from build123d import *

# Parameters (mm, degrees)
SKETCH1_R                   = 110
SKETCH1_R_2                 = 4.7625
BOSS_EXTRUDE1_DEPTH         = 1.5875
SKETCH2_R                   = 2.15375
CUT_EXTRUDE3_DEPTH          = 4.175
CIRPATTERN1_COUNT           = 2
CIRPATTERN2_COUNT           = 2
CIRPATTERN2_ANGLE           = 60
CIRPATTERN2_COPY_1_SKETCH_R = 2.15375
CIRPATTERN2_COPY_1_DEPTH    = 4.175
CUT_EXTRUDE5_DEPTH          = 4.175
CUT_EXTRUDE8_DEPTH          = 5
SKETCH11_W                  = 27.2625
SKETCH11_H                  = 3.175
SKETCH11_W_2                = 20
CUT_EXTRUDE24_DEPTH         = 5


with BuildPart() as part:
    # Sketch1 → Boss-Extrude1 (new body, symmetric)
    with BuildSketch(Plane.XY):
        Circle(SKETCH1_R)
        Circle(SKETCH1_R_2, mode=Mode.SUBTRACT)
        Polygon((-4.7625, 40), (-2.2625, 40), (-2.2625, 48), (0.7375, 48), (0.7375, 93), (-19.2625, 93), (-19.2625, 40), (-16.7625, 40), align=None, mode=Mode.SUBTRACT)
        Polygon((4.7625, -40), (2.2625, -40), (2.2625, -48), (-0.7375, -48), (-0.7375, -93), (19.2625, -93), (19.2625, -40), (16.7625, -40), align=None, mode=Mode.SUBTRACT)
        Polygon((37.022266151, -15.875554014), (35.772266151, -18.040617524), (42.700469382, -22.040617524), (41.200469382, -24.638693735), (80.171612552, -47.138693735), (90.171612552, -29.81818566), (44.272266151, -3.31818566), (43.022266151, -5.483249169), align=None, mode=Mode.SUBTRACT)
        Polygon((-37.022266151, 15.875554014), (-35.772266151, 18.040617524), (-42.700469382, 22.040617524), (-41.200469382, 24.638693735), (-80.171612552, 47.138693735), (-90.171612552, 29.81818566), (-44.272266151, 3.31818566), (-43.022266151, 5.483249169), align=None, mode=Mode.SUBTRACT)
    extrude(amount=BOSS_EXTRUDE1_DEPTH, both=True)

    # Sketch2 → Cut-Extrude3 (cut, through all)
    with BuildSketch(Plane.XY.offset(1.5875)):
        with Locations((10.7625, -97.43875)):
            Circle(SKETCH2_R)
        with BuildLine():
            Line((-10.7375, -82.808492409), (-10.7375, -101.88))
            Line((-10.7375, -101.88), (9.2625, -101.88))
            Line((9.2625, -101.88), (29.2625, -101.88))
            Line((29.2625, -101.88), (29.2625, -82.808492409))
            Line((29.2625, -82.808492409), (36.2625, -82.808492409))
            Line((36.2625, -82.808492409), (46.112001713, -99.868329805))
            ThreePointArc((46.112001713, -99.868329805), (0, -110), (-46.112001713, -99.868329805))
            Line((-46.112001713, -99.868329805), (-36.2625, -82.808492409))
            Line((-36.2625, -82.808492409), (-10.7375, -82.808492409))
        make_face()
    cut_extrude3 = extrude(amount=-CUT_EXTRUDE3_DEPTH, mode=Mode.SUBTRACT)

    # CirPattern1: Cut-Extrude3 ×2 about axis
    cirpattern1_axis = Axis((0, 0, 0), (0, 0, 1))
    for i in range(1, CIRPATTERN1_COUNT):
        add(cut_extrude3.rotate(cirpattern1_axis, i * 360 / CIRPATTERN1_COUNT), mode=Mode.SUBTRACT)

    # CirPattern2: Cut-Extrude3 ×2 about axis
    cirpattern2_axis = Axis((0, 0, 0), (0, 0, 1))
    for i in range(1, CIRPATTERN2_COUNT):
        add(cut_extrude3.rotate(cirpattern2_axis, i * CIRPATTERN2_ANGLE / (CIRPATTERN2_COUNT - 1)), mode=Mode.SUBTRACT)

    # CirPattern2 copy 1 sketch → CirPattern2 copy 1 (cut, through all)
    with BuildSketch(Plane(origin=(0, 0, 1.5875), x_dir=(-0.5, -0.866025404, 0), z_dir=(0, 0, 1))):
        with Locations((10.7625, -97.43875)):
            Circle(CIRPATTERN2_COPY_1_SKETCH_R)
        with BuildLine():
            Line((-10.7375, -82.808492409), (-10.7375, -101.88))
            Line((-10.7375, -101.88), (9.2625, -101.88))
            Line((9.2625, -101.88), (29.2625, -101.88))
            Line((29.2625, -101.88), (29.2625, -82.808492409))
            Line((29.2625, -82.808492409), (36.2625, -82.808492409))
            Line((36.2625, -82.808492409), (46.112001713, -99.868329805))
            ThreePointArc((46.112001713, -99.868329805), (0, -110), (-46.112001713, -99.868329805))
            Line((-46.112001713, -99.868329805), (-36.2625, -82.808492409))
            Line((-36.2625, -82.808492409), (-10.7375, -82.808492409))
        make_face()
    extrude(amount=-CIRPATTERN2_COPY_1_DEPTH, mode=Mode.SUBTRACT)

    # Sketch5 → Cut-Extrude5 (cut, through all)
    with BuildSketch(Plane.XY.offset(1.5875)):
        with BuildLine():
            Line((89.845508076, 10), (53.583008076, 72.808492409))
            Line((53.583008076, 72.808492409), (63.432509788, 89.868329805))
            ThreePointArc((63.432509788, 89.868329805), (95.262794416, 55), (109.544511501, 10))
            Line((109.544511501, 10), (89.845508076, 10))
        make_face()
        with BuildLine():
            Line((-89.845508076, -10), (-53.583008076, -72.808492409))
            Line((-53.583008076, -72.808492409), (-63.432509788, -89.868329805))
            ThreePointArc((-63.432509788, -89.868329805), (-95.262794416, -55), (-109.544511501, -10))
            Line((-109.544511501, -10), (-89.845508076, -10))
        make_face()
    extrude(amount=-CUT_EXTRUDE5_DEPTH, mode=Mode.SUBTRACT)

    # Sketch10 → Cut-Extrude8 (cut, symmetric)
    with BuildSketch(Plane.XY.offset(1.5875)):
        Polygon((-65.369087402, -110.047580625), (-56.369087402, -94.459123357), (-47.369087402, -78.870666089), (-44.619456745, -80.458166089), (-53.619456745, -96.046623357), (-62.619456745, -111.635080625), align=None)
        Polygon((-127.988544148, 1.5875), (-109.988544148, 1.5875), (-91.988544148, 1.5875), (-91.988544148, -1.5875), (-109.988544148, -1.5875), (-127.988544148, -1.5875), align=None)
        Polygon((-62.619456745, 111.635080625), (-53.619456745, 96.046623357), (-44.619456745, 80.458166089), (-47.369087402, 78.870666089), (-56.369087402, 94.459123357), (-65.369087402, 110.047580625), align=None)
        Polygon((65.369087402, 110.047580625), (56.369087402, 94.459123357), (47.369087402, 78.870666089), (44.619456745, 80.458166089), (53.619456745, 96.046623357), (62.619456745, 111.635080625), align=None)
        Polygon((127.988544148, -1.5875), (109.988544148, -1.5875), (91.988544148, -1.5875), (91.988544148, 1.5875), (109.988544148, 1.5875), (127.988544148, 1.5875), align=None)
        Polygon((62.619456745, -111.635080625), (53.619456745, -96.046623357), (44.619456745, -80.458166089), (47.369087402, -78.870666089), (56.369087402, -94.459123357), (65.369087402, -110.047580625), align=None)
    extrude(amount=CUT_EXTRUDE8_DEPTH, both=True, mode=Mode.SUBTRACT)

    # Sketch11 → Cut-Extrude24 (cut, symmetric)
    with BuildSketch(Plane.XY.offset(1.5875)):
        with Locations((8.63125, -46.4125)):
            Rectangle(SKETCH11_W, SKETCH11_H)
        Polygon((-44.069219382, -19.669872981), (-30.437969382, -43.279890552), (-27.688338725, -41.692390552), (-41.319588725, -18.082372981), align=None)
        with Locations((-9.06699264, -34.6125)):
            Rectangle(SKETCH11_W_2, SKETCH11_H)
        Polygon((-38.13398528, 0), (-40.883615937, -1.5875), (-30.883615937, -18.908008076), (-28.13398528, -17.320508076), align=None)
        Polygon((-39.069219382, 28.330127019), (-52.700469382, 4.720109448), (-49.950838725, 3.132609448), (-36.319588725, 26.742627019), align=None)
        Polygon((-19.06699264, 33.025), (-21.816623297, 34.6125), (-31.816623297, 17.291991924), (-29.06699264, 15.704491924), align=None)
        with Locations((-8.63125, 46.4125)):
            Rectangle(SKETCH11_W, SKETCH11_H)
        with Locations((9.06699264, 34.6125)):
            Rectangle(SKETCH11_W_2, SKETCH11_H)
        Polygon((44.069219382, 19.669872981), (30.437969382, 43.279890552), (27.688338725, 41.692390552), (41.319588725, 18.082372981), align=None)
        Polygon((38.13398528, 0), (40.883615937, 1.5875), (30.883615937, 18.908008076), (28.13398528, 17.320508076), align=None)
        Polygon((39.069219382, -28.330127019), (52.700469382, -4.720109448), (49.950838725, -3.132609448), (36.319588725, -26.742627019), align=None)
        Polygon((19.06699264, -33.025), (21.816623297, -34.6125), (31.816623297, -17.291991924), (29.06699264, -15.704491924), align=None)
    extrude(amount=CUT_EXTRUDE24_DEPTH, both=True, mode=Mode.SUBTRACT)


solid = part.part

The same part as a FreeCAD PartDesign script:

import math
import FreeCAD as App
import Part
import Sketcher
from FreeCAD import Vector
Q = App.Units.Quantity


def add_polygon(sketch, points):
    """Adds a closed chain of lines whose ends are joined by coincident constraints."""
    first, n = sketch.GeometryCount, len(points)
    for a, b in zip(points, points[1:] + points[:1]):
        sketch.addGeometry(Part.LineSegment(App.Vector(*a, 0), App.Vector(*b, 0)), False)
    for i in range(n):
        sketch.addConstraint(Sketcher.Constraint("Coincident", first + i, 2, first + (i + 1) % n, 1))

doc = App.newDocument("Part")
body = doc.addObject("PartDesign::Body", "Body")

# Sketch on XY plane
sketch1 = body.newObject("Sketcher::SketchObject", "Sketch")
sketch1.AttachmentSupport = (doc.getObject("XY_Plane"), [""])
sketch1.MapMode = "FlatFace"
sketch1.addGeometry(Part.Circle(Vector(0, 0, 0), Vector(0, 0, 1), 110), False)  # 0
add_polygon(sketch1, [(2.2625, -40), (19.2625, -40), (19.2625, -93), (-0.7375, -93), (-0.7375, -48), (2.2625, -48)])  # lines 1-6
add_polygon(sketch1, [(35.772266, -18.040618), (37.022266, -15.875554), (43.022266, -5.483249), (44.272266, -3.318186), (90.171613, -29.818186), (80.171613, -47.138694), (41.200469, -24.638694), (42.700469, -22.040618)])  # lines 7-14
add_polygon(sketch1, [(-35.772266, 18.040618), (-37.022266, 15.875554), (-43.022266, 5.483249), (-44.272266, 3.318186), (-90.171613, 29.818186), (-80.171613, 47.138694), (-41.200469, 24.638694), (-42.700469, 22.040618)])  # lines 15-22
sketch1.addGeometry(Part.Circle(Vector(0, 0, 0), Vector(0, 0, 1), 4.7625), False)  # 23
add_polygon(sketch1, [(-2.2625, 40), (-19.2625, 40), (-19.2625, 93), (0.7375, 93), (0.7375, 48), (-2.2625, 48)])  # lines 24-29
sketch1.addConstraint([
    Sketcher.Constraint("Horizontal", 1),
    Sketcher.Constraint("Vertical", 2),
    Sketcher.Constraint("Horizontal", 3),
    Sketcher.Constraint("Vertical", 4),
    Sketcher.Constraint("Horizontal", 5),
    Sketcher.Constraint("Vertical", 6),
    Sketcher.Constraint("Horizontal", 24),
    Sketcher.Constraint("Vertical", 25),
    Sketcher.Constraint("Horizontal", 26),
    Sketcher.Constraint("Vertical", 27),
    Sketcher.Constraint("Horizontal", 28),
    Sketcher.Constraint("Vertical", 29),
    Sketcher.Constraint("Coincident", 0, 3, -1, 1),
    Sketcher.Constraint("Coincident", 23, 3, -1, 1),
    Sketcher.Constraint("Symmetric", 7, 2, 15, 2, -1, 1),
    Sketcher.Constraint("Symmetric", 8, 2, 16, 2, -1, 1),
    Sketcher.Constraint("Symmetric", 9, 2, 17, 2, -1, 1),
    Sketcher.Constraint("Symmetric", 10, 2, 18, 2, -1, 1),
    Sketcher.Constraint("Symmetric", 11, 2, 19, 2, -1, 1),
    Sketcher.Constraint("Symmetric", 12, 2, 20, 2, -1, 1),
    Sketcher.Constraint("Symmetric", 13, 2, 21, 2, -1, 1),
    Sketcher.Constraint("Symmetric", 14, 2, 22, 2, -1, 1),
    Sketcher.Constraint("Symmetric", 1, 2, 24, 2, -1, 1),
    Sketcher.Constraint("Symmetric", 3, 2, 26, 2, -1, 1),
    Sketcher.Constraint("Symmetric", 5, 2, 28, 2, -1, 1),
    Sketcher.Constraint("Parallel", 7, 8),
    Sketcher.Constraint("Parallel", 8, 9),
    Sketcher.Constraint("Perpendicular", 9, 10),
    Sketcher.Constraint("Perpendicular", 10, 11),
    Sketcher.Constraint("Perpendicular", 11, 12),
    Sketcher.Constraint("Perpendicular", 12, 13),
    Sketcher.Constraint("Perpendicular", 13, 14),
    Sketcher.Constraint("Equal", 7, 9),
    Sketcher.Constraint("Diameter", 0, Q("220 mm")),
    Sketcher.Constraint("DistanceX", 1, 1, 1, 2, Q("17 mm")),
    Sketcher.Constraint("DistanceX", 3, 2, 3, 1, Q("20 mm")),
    Sketcher.Constraint("DistanceY", 2, 2, 2, 1, Q("53 mm")),
    Sketcher.Constraint("DistanceY", 4, 1, 4, 2, Q("45 mm")),
    Sketcher.Constraint("Angle", 7, Q("60 deg")),
    Sketcher.Constraint("Distance", 8, Q("12 mm")),
    Sketcher.Constraint("Distance", 10, Q("53 mm")),
    Sketcher.Constraint("Distance", 11, Q("20 mm")),
    Sketcher.Constraint("Distance", 12, Q("45 mm")),
    Sketcher.Constraint("Distance", 13, Q("3 mm")),
    Sketcher.Constraint("Diameter", 23, Q("9.525 mm")),
    Sketcher.Constraint("DistanceY", 1, 2, -1, 1, Q("40 mm")),
    Sketcher.Constraint("DistanceX", -1, 1, 1, 2, Q("19.2625 mm")),
    Sketcher.Constraint("DistanceY", 8, 2, -1, 1, Q("5.483249 mm")),
    Sketcher.Constraint("DistanceX", -1, 1, 12, 2, Q("41.200469 mm")),
])
pad1 = body.newObject("PartDesign::Pad", "Pad")
pad1.Profile = sketch1
pad1.Length = 3.175
pad1.Midplane = True

# Sketch on XY plane
sketch2 = body.newObject("Sketcher::SketchObject", "Sketch001")
sketch2.AttachmentSupport = (doc.getObject("XY_Plane"), [""])
sketch2.MapMode = "FlatFace"
sketch2.AttachmentOffset = App.Placement(Vector(0, 0, 1.5875), App.Rotation())
sketch2.addGeometry([
    Part.Circle(Vector(10.7625, -97.43875, 0), Vector(0, 0, 1), 2.15375),  # 0
    Part.LineSegment(Vector(-10.7375, -101.88, 0), Vector(-10.7375, -82.808492, 0)),  # 1
    Part.LineSegment(Vector(-10.7375, -82.808492, 0), Vector(-36.2625, -82.808492, 0)),  # 2
    Part.LineSegment(Vector(-36.2625, -82.808492, 0), Vector(-46.112002, -99.86833, 0)),  # 3
    Part.ArcOfCircle(Part.Circle(Vector(0, 0, 0), Vector(0, 0, 1), 110), math.radians(-114.784091), math.radians(-65.215909)),  # 4
    Part.LineSegment(Vector(46.112002, -99.86833, 0), Vector(36.2625, -82.808492, 0)),  # 5
    Part.LineSegment(Vector(36.2625, -82.808492, 0), Vector(29.2625, -82.808492, 0)),  # 6
    Part.LineSegment(Vector(29.2625, -82.808492, 0), Vector(29.2625, -101.88, 0)),  # 7
    Part.LineSegment(Vector(29.2625, -101.88, 0), Vector(-10.7375, -101.88, 0)),  # 8
], False)
sketch2.addConstraint([
    Sketcher.Constraint("Coincident", 1, 2, 2, 1),
    Sketcher.Constraint("Coincident", 2, 2, 3, 1),
    Sketcher.Constraint("Coincident", 3, 2, 4, 1),
    Sketcher.Constraint("Coincident", 4, 2, 5, 1),
    Sketcher.Constraint("Coincident", 5, 2, 6, 1),
    Sketcher.Constraint("Coincident", 6, 2, 7, 1),
    Sketcher.Constraint("Coincident", 7, 2, 8, 1),
    Sketcher.Constraint("Coincident", 8, 2, 1, 1),
    Sketcher.Constraint("Vertical", 1),
    Sketcher.Constraint("Horizontal", 2),
    Sketcher.Constraint("Horizontal", 6),
    Sketcher.Constraint("Vertical", 7),
    Sketcher.Constraint("Horizontal", 8),
    Sketcher.Constraint("Coincident", 4, 3, -1, 1),
    Sketcher.Constraint("Symmetric", 2, 2, 5, 2, -2),
    Sketcher.Constraint("Horizontal", 3, 2, 4, 2),
    Sketcher.Constraint("Radius", 4, Q("110 mm")),
    Sketcher.Constraint("DistanceX", 6, 2, 6, 1, Q("7 mm")),
    Sketcher.Constraint("DistanceX", 8, 2, 8, 1, Q("40 mm")),
    Sketcher.Constraint("Angle", 3, Q("-120 deg")),
    Sketcher.Constraint("Diameter", 0, Q("4.3075 mm")),
    Sketcher.Constraint("DistanceX", 1, 2, 0, 3, Q("21.5 mm")),
    Sketcher.Constraint("DistanceX", 2, 2, 2, 1, Q("25.525 mm")),
    Sketcher.Constraint("DistanceY", 7, 2, -1, 1, Q("101.88 mm")),
    Sketcher.Constraint("DistanceX", 3, 2, -1, 1, Q("46.112002 mm")),
    Sketcher.Constraint("DistanceY", 0, 3, -1, 1, Q("97.43875 mm")),
])
pocket1 = body.newObject("PartDesign::Pocket", "Pocket")
pocket1.Profile = sketch2
pocket1.Type = "ThroughAll"
doc.recompute()

polarpattern = body.newObject("PartDesign::PolarPattern", "PolarPattern")
polarpattern.Originals = [pocket1]
polarpattern.Axis = (doc.getObject("Z_Axis"), [""])
polarpattern.Angle = 360
polarpattern.Occurrences = 2
body.Tip = polarpattern
doc.recompute()

polarpattern2 = body.newObject("PartDesign::PolarPattern", "PolarPattern001")
polarpattern2.Originals = [pocket1]
polarpattern2.Axis = (doc.getObject("Z_Axis"), [""])
polarpattern2.Angle = 60
polarpattern2.Occurrences = 2
body.Tip = polarpattern2

# Sketch on XY plane
sketch3 = body.newObject("Sketcher::SketchObject", "Sketch002")
sketch3.AttachmentSupport = (doc.getObject("XY_Plane"), [""])
sketch3.MapMode = "FlatFace"
sketch3.AttachmentOffset = App.Placement(Vector(0, 0, 1.5875), App.Rotation())
sketch3.addGeometry([
    Part.Circle(Vector(-89.765683, 39.398777, 0), Vector(0, 0, 1), 2.15375),  # 0
    Part.LineSegment(Vector(-82.861918, 60.238948, 0), Vector(-66.345508, 50.703194, 0)),  # 1
    Part.LineSegment(Vector(-66.345508, 50.703194, 0), Vector(-53.583008, 72.808492, 0)),  # 2
    Part.LineSegment(Vector(-53.583008, 72.808492, 0), Vector(-63.43251, 89.86833, 0)),  # 3
    Part.ArcOfCircle(Part.Circle(Vector(0, 0, 0), Vector(0, 0, 1), 110), math.radians(125.215909), math.radians(174.784091)),  # 4
    Part.LineSegment(Vector(-109.544512, 10, 0), Vector(-89.845508, 10, 0)),  # 5
    Part.LineSegment(Vector(-89.845508, 10, 0), Vector(-86.345508, 16.062178, 0)),  # 6
    Part.LineSegment(Vector(-86.345508, 16.062178, 0), Vector(-102.861918, 25.597932, 0)),  # 7
    Part.LineSegment(Vector(-102.861918, 25.597932, 0), Vector(-82.861918, 60.238948, 0)),  # 8
], False)
sketch3.addConstraint([
    Sketcher.Constraint("Coincident", 1, 2, 2, 1),
    Sketcher.Constraint("Coincident", 2, 2, 3, 1),
    Sketcher.Constraint("Coincident", 3, 2, 4, 1),
    Sketcher.Constraint("Coincident", 4, 2, 5, 1),
    Sketcher.Constraint("Coincident", 5, 2, 6, 1),
    Sketcher.Constraint("Coincident", 6, 2, 7, 1),
    Sketcher.Constraint("Coincident", 7, 2, 8, 1),
    Sketcher.Constraint("Coincident", 8, 2, 1, 1),
    Sketcher.Constraint("Horizontal", 5),
    Sketcher.Constraint("Coincident", 4, 3, -1, 1),
    Sketcher.Constraint("Perpendicular", 1, 2),
    Sketcher.Constraint("Parallel", 2, 6),
    Sketcher.Constraint("Perpendicular", 6, 7),
    Sketcher.Constraint("Perpendicular", 7, 8),
    Sketcher.Constraint("Equal", 1, 7),
    Sketcher.Constraint("Radius", 4, Q("110 mm")),
    Sketcher.Constraint("Angle", 1, Q("-30 deg")),
    Sketcher.Constraint("Angle", 3, Q("120 deg")),
    Sketcher.Constraint("Distance", 6, Q("7 mm")),
    Sketcher.Constraint("Distance", 8, Q("40 mm")),
    Sketcher.Constraint("DistanceY", -1, 1, 4, 2, Q("10 mm")),
    Sketcher.Constraint("Diameter", 0, Q("4.3075 mm")),
    Sketcher.Constraint("Distance", 2, Q("25.525 mm")),
    Sketcher.Constraint("DistanceX", 1, 2, 3, 2, Q("2.912998 mm")),
    Sketcher.Constraint("DistanceY", 6, 2, 0, 3, Q("23.336599 mm")),
    Sketcher.Constraint("DistanceX", 7, 2, -1, 1, Q("102.861918 mm")),
    Sketcher.Constraint("DistanceX", 4, 2, 0, 3, Q("19.778829 mm")),
])
pocket2 = body.newObject("PartDesign::Pocket", "Pocket001")
pocket2.Profile = sketch3
pocket2.Type = "ThroughAll"

# Sketch on XY plane
sketch4 = body.newObject("Sketcher::SketchObject", "Sketch003")
sketch4.AttachmentSupport = (doc.getObject("XY_Plane"), [""])
sketch4.MapMode = "FlatFace"
sketch4.AttachmentOffset = App.Placement(Vector(0, 0, 1.5875), App.Rotation())
sketch4.addGeometry([
    Part.LineSegment(Vector(53.583008, 72.808492, 0), Vector(89.845508, 10, 0)),  # 0
    Part.LineSegment(Vector(89.845508, 10, 0), Vector(109.544512, 10, 0)),  # 1
    Part.ArcOfCircle(Part.Circle(Vector(0, 0, 0), Vector(0, 0, 1), 110), math.radians(5.215909), math.radians(54.784091)),  # 2
    Part.LineSegment(Vector(63.43251, 89.86833, 0), Vector(53.583008, 72.808492, 0)),  # 3
    Part.LineSegment(Vector(-53.583008, -72.808492, 0), Vector(-89.845508, -10, 0)),  # 4
    Part.LineSegment(Vector(-89.845508, -10, 0), Vector(-109.544512, -10, 0)),  # 5
    Part.ArcOfCircle(Part.Circle(Vector(0, 0, 0), Vector(0, 0, 1), 110), math.radians(-174.784091), math.radians(-125.215909)),  # 6
    Part.LineSegment(Vector(-63.43251, -89.86833, 0), Vector(-53.583008, -72.808492, 0)),  # 7
], False)
sketch4.addConstraint([
    Sketcher.Constraint("Coincident", 0, 2, 1, 1),
    Sketcher.Constraint("Coincident", 1, 2, 2, 1),
    Sketcher.Constraint("Coincident", 2, 2, 3, 1),
    Sketcher.Constraint("Coincident", 3, 2, 0, 1),
    Sketcher.Constraint("Coincident", 4, 2, 5, 1),
    Sketcher.Constraint("Coincident", 5, 2, 6, 1),
    Sketcher.Constraint("Coincident", 6, 2, 7, 1),
    Sketcher.Constraint("Coincident", 7, 2, 4, 1),
    Sketcher.Constraint("Horizontal", 1),
    Sketcher.Constraint("Horizontal", 5),
    Sketcher.Constraint("Coincident", 2, 3, -1, 1),
    Sketcher.Constraint("Coincident", 6, 3, -1, 1),
    Sketcher.Constraint("Equal", 2, 6),
    Sketcher.Constraint("Symmetric", 0, 2, 4, 2, -1, 1),
    Sketcher.Constraint("Symmetric", 3, 2, 7, 2, -1, 1),
    Sketcher.Constraint("Parallel", 3, 7),
    Sketcher.Constraint("Radius", 2, Q("110 mm")),
    Sketcher.Constraint("Angle", 0, Q("-60 deg")),
    Sketcher.Constraint("Angle", 3, Q("-120 deg")),
    Sketcher.Constraint("DistanceY", -1, 1, 0, 2, Q("10 mm")),
    Sketcher.Constraint("Distance", 0, Q("72.525 mm")),
    Sketcher.Constraint("DistanceX", 2, 2, 1, 2, Q("46.112002 mm")),
])
pocket3 = body.newObject("PartDesign::Pocket", "Pocket002")
pocket3.Profile = sketch4
pocket3.Type = "ThroughAll"

# Sketch on XY plane
sketch5 = body.newObject("Sketcher::SketchObject", "Sketch004")
sketch5.AttachmentSupport = (doc.getObject("XY_Plane"), [""])
sketch5.MapMode = "FlatFace"
sketch5.AttachmentOffset = App.Placement(Vector(0, 0, 1.5875), App.Rotation())
add_polygon(sketch5, [(-47.369087, -78.870666), (-65.369087, -110.047581), (-62.619457, -111.635081), (-44.619457, -80.458166)])  # lines 0-3
add_polygon(sketch5, [(-91.988544, 1.5875), (-127.988544, 1.5875), (-127.988544, -1.5875), (-91.988544, -1.5875)])  # lines 4-7
add_polygon(sketch5, [(-44.619457, 80.458166), (-62.619457, 111.635081), (-65.369087, 110.047581), (-47.369087, 78.870666)])  # lines 8-11
add_polygon(sketch5, [(47.369087, 78.870666), (65.369087, 110.047581), (62.619457, 111.635081), (44.619457, 80.458166)])  # lines 12-15
add_polygon(sketch5, [(91.988544, -1.5875), (127.988544, -1.5875), (127.988544, 1.5875), (91.988544, 1.5875)])  # lines 16-19
add_polygon(sketch5, [(44.619457, -80.458166), (62.619457, -111.635081), (65.369087, -110.047581), (47.369087, -78.870666)])  # lines 20-23
sketch5.addConstraint([
    Sketcher.Constraint("Horizontal", 4),
    Sketcher.Constraint("Vertical", 5),
    Sketcher.Constraint("Horizontal", 6),
    Sketcher.Constraint("Vertical", 7),
    Sketcher.Constraint("Horizontal", 16),
    Sketcher.Constraint("Vertical", 17),
    Sketcher.Constraint("Horizontal", 18),
    Sketcher.Constraint("Vertical", 19),
    Sketcher.Constraint("Symmetric", 0, 2, 12, 2, -1, 1),
    Sketcher.Constraint("Symmetric", 1, 2, 13, 2, -1, 1),
    Sketcher.Constraint("Symmetric", 2, 2, 14, 2, -1, 1),
    Sketcher.Constraint("Symmetric", 3, 2, 15, 2, -1, 1),
    Sketcher.Constraint("Symmetric", 4, 2, 16, 2, -1, 1),
    Sketcher.Constraint("Symmetric", 6, 2, 18, 2, -1, 1),
    Sketcher.Constraint("Symmetric", 8, 2, 20, 2, -1, 1),
    Sketcher.Constraint("Symmetric", 9, 2, 21, 2, -1, 1),
    Sketcher.Constraint("Symmetric", 10, 2, 22, 2, -1, 1),
    Sketcher.Constraint("Symmetric", 11, 2, 23, 2, -1, 1),
    Sketcher.Constraint("Symmetric", 9, 2, 12, 2, -2),
    Sketcher.Constraint("Symmetric", 8, 2, 13, 2, -2),
    Sketcher.Constraint("Symmetric", 11, 2, 14, 2, -2),
    Sketcher.Constraint("Symmetric", 10, 2, 15, 2, -2),
    Sketcher.Constraint("Perpendicular", 0, 1),
    Sketcher.Constraint("Perpendicular", 1, 2),
    Sketcher.Constraint("Perpendicular", 2, 3),
    Sketcher.Constraint("Horizontal", 6, 2, 16, 2),
    Sketcher.Constraint("DistanceX", 4, 2, 4, 1, Q("36 mm")),
    Sketcher.Constraint("Angle", 0, Q("-120 deg")),
    Sketcher.Constraint("Distance", 0, Q("36 mm")),
    Sketcher.Constraint("DistanceY", 5, 2, 5, 1, Q("3.175 mm")),
    Sketcher.Constraint("Distance", 1, Q("3.175 mm")),
    Sketcher.Constraint("DistanceX", 2, 2, 16, 2, Q("172.608001 mm")),
    Sketcher.Constraint("DistanceY", 0, 2, -1, 1, Q("110.047581 mm")),
    Sketcher.Constraint("DistanceX", 0, 2, -1, 1, Q("65.369087 mm")),
])
pocket4 = body.newObject("PartDesign::Pocket", "Pocket003")
pocket4.Profile = sketch5
pocket4.Length = 10
pocket4.Midplane = True

# Sketch on XY plane
sketch6 = body.newObject("Sketcher::SketchObject", "Sketch005")
sketch6.AttachmentSupport = (doc.getObject("XY_Plane"), [""])
sketch6.MapMode = "FlatFace"
sketch6.AttachmentOffset = App.Placement(Vector(0, 0, 1.5875), App.Rotation())
add_polygon(sketch6, [(-5, -44.825), (-5, -48), (22.2625, -48), (22.2625, -44.825)])  # lines 0-3
add_polygon(sketch6, [(-44.069219, -19.669873), (-30.437969, -43.279891), (-27.688339, -41.692391), (-41.319589, -18.082373)])  # lines 4-7
add_polygon(sketch6, [(-19.066993, -33.025), (-19.066993, -36.2), (0.933007, -36.2), (0.933007, -33.025)])  # lines 8-11
add_polygon(sketch6, [(-38.133985, 0), (-40.883616, -1.5875), (-30.883616, -18.908008), (-28.133985, -17.320508)])  # lines 12-15
add_polygon(sketch6, [(-39.069219, 28.330127), (-52.700469, 4.720109), (-49.950839, 3.132609), (-36.319589, 26.742627)])  # lines 16-19
add_polygon(sketch6, [(-19.066993, 33.025), (-21.816623, 34.6125), (-31.816623, 17.291992), (-29.066993, 15.704492)])  # lines 20-23
add_polygon(sketch6, [(-22.2625, 48), (-22.2625, 44.825), (5, 44.825), (5, 48)])  # lines 24-27
add_polygon(sketch6, [(-0.933007, 36.2), (-0.933007, 33.025), (19.066993, 33.025), (19.066993, 36.2)])  # lines 28-31
add_polygon(sketch6, [(44.069219, 19.669873), (30.437969, 43.279891), (27.688339, 41.692391), (41.319589, 18.082373)])  # lines 32-35
add_polygon(sketch6, [(38.133985, 0), (40.883616, 1.5875), (30.883616, 18.908008), (28.133985, 17.320508)])  # lines 36-39
add_polygon(sketch6, [(39.069219, -28.330127), (52.700469, -4.720109), (49.950839, -3.132609), (36.319589, -26.742627)])  # lines 40-43
add_polygon(sketch6, [(19.066993, -33.025), (21.816623, -34.6125), (31.816623, -17.291992), (29.066993, -15.704492)])  # lines 44-47
sketch6.addConstraint([
    Sketcher.Constraint("Vertical", 0),
    Sketcher.Constraint("Horizontal", 1),
    Sketcher.Constraint("Vertical", 2),
    Sketcher.Constraint("Horizontal", 3),
    Sketcher.Constraint("Vertical", 8),
    Sketcher.Constraint("Horizontal", 9),
    Sketcher.Constraint("Vertical", 10),
    Sketcher.Constraint("Horizontal", 11),
    Sketcher.Constraint("Vertical", 24),
    Sketcher.Constraint("Horizontal", 25),
    Sketcher.Constraint("Vertical", 26),
    Sketcher.Constraint("Horizontal", 27),
    Sketcher.Constraint("Vertical", 28),
    Sketcher.Constraint("Horizontal", 29),
    Sketcher.Constraint("Vertical", 30),
    Sketcher.Constraint("Horizontal", 31),
    Sketcher.Constraint("Symmetric", 2, 2, 24, 2, -1, 1),
    Sketcher.Constraint("Symmetric", 0, 2, 26, 2, -1, 1),
    Sketcher.Constraint("Symmetric", 10, 2, 28, 2, -1, 1),
    Sketcher.Constraint("Symmetric", 8, 2, 30, 2, -1, 1),
    Sketcher.Constraint("Symmetric", 4, 2, 32, 2, -1, 1),
    Sketcher.Constraint("Symmetric", 5, 2, 33, 2, -1, 1),
    Sketcher.Constraint("Symmetric", 6, 2, 34, 2, -1, 1),
    Sketcher.Constraint("Symmetric", 7, 2, 35, 2, -1, 1),
    Sketcher.Constraint("Symmetric", 12, 2, 36, 2, -1, 1),
    Sketcher.Constraint("Symmetric", 13, 2, 37, 2, -1, 1),
    Sketcher.Constraint("Symmetric", 14, 2, 38, 2, -1, 1),
    Sketcher.Constraint("Symmetric", 15, 2, 39, 2, -1, 1),
    Sketcher.Constraint("Symmetric", 16, 2, 40, 2, -1, 1),
    Sketcher.Constraint("Symmetric", 17, 2, 41, 2, -1, 1),
    Sketcher.Constraint("Symmetric", 18, 2, 42, 2, -1, 1),
    Sketcher.Constraint("Symmetric", 19, 2, 43, 2, -1, 1),
    Sketcher.Constraint("Symmetric", 20, 2, 44, 2, -1, 1),
    Sketcher.Constraint("Symmetric", 21, 2, 45, 2, -1, 1),
    Sketcher.Constraint("Symmetric", 22, 2, 46, 2, -1, 1),
    Sketcher.Constraint("Symmetric", 23, 2, 47, 2, -1, 1),
    Sketcher.Constraint("Symmetric", 23, 2, 29, 2, -2),
    Sketcher.Constraint("PointOnObject", 15, 2, -1),
    Sketcher.Constraint("Perpendicular", 4, 5),
    Sketcher.Constraint("Perpendicular", 5, 6),
    Sketcher.Constraint("Perpendicular", 6, 7),
    Sketcher.Constraint("Parallel", 7, 12),
    Sketcher.Constraint("Perpendicular", 12, 13),
    Sketcher.Constraint("Perpendicular", 13, 14),
    Sketcher.Constraint("Perpendicular", 14, 15),
    Sketcher.Constraint("Perpendicular", 16, 17),
    Sketcher.Constraint("Perpendicular", 17, 18),
    Sketcher.Constraint("Perpendicular", 18, 19),
    Sketcher.Constraint("Parallel", 19, 20),
    Sketcher.Constraint("Perpendicular", 20, 21),
    Sketcher.Constraint("Perpendicular", 21, 22),
    Sketcher.Constraint("Perpendicular", 22, 23),
    Sketcher.Constraint("Equal", 2, 8),
    Sketcher.Constraint("Equal", 7, 12),
    Sketcher.Constraint("Equal", 6, 16),
    Sketcher.Constraint("Equal", 14, 17),
    Sketcher.Constraint("Equal", 19, 20),
    Sketcher.Constraint("Equal", 15, 21),
    Sketcher.Constraint("DistanceX", 9, 1, 9, 2, Q("20 mm")),
    Sketcher.Constraint("Angle", 4, Q("-60 deg")),
    Sketcher.Constraint("Angle", 16, Q("-120 deg")),
    Sketcher.Constraint("Distance", 13, Q("20 mm")),
    Sketcher.Constraint("DistanceX", 0, 2, -1, 1, Q("5 mm")),
    Sketcher.Constraint("DistanceY", 0, 2, -1, 1, Q("48 mm")),
    Sketcher.Constraint("DistanceY", 8, 2, -1, 1, Q("36.2 mm")),
    Sketcher.Constraint("DistanceY", 12, 2, 20, 2, Q("36.2 mm")),
    Sketcher.Constraint("DistanceY", 0, 2, 0, 1, Q("3.175 mm")),
    Sketcher.Constraint("DistanceX", 1, 1, 1, 2, Q("27.2625 mm")),
    Sketcher.Constraint("Distance", 4, Q("27.2625 mm")),
    Sketcher.Constraint("DistanceX", 4, 2, -1, 1, Q("30.437969 mm")),
    Sketcher.Constraint("DistanceY", 4, 2, -1, 1, Q("43.279891 mm")),
    Sketcher.Constraint("DistanceX", 16, 2, -1, 1, Q("52.700469 mm")),
    Sketcher.Constraint("DistanceY", -1, 1, 16, 2, Q("4.720109 mm")),
    Sketcher.Constraint("DistanceX", 15, 2, 20, 2, Q("16.317362 mm")),
    Sketcher.Constraint("DistanceX", 8, 2, -1, 1, Q("19.066993 mm")),
])
pocket5 = body.newObject("PartDesign::Pocket", "Pocket004")
pocket5.Profile = sketch6
pocket5.Length = 10
pocket5.Midplane = True

doc.recompute()
